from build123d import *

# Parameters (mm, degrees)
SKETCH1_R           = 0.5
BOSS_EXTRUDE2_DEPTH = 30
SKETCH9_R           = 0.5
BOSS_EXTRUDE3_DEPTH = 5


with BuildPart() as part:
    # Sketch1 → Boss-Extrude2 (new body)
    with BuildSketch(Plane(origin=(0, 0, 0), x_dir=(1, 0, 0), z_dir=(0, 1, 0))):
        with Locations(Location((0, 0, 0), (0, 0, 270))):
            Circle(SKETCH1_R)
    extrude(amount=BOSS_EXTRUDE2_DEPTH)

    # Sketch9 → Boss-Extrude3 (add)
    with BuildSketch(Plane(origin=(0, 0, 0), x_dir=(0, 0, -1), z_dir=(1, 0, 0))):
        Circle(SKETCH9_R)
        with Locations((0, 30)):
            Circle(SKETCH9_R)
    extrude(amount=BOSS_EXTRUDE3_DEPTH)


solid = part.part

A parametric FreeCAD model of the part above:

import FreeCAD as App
import Part
import Sketcher
from FreeCAD import Vector

doc = App.newDocument("Part")
body = doc.addObject("PartDesign::Body", "Body")

# Sketch on XZ plane
sketch1 = doc.addObject("Sketcher::SketchObject", "Sketch")
body.addObject(sketch1)
sketch1.AttachmentSupport = (doc.XZ_Plane, [""])
sketch1.MapMode = "FlatFace"
sketch1.addGeometry(Part.Circle(Vector(0, 0, 0), Vector(0, 0, 1), 0.5), False)
sketch1.addConstraint([
    Sketcher.Constraint("Coincident", 0, 3, -1, 1),
    Sketcher.Constraint("Diameter", 0, 1.0),
])
pad1 = doc.addObject("PartDesign::Pad", "Pad")
body.addObject(pad1)
pad1.Profile = sketch1
pad1.Length = 30
pad1.Reversed = True

# Sketch on YZ plane
sketch2 = doc.addObject("Sketcher::SketchObject", "Sketch001")
body.addObject(sketch2)
sketch2.AttachmentSupport = (doc.YZ_Plane, [""])
sketch2.MapMode = "FlatFace"
sketch2.addGeometry([
    Part.Circle(Vector(0, 0, 0), Vector(0, 0, 1), 0.5),
    Part.Circle(Vector(30, 0, 0), Vector(0, 0, 1), 0.5),
], False)
sketch2.addConstraint([
    Sketcher.Constraint("Coincident", 0, 3, -1, 1),
    Sketcher.Constraint("Equal", 0, 1),
    Sketcher.Constraint("PointOnObject", 1, 3, -1),
    Sketcher.Constraint("Diameter", 0, 1.0),
    Sketcher.Constraint("DistanceX", -1, 1, 1, 3, 30.0),
])
pad2 = doc.addObject("PartDesign::Pad", "Pad001")
body.addObject(pad2)
pad2.Profile = sketch2
pad2.Length = 5

doc.recompute()
